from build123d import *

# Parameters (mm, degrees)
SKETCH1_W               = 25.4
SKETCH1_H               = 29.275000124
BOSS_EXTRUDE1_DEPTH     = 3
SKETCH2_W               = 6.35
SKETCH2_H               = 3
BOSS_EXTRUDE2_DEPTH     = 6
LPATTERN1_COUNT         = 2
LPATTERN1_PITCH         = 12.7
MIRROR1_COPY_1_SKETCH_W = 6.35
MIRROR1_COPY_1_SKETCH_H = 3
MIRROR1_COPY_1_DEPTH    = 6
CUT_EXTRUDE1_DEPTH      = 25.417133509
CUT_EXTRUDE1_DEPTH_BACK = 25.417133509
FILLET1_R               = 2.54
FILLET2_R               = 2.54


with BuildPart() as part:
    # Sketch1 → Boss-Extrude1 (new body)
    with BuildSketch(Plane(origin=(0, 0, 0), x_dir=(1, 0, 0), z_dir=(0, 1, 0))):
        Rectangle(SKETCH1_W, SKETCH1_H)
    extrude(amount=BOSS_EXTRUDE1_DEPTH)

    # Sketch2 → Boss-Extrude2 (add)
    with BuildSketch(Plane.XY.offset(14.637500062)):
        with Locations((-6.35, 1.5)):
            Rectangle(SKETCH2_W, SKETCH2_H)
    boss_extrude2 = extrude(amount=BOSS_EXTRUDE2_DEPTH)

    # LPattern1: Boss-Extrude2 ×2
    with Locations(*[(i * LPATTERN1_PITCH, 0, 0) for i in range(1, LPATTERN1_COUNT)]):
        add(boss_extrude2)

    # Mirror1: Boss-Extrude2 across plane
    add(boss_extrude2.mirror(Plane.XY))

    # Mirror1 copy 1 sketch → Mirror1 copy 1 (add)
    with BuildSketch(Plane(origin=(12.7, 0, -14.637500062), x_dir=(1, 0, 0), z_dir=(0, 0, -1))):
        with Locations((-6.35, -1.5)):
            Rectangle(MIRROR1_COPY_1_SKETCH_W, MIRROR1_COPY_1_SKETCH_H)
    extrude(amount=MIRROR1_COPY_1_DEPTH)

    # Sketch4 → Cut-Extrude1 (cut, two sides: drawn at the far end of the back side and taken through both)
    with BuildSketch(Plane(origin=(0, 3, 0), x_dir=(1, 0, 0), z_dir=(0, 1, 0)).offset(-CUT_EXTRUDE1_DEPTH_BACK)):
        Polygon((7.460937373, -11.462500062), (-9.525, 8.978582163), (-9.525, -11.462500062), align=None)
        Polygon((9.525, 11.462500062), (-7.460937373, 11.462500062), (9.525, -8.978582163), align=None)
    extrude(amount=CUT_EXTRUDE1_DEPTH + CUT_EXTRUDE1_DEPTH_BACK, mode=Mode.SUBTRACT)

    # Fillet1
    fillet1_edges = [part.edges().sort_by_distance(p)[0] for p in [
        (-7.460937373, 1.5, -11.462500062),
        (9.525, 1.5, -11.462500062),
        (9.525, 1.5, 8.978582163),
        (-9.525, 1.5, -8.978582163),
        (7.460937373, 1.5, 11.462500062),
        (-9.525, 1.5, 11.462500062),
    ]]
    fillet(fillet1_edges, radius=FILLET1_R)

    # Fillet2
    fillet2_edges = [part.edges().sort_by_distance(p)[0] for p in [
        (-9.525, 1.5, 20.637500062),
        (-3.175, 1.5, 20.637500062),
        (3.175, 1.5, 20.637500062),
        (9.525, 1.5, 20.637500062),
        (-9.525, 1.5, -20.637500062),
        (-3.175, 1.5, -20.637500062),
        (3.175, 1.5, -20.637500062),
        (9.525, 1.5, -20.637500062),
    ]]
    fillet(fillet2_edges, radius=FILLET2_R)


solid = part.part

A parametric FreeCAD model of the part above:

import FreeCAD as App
import Part
import Sketcher

V = App.Vector
Q = App.Units.Quantity


def edges_at(feature, points):
    """Names of the edges that pass closest to the given points."""
    edges = feature.Shape.Edges
    near = lambda p: min(range(len(edges)), key=lambda i: edges[i].distToShape(Part.Vertex(*p))[0])
    return sorted({f"Edge{near(p) + 1}" for p in points})

doc = App.newDocument("Part")
body = doc.addObject("PartDesign::Body", "Body")

# Sketch on XZ plane
sketch1 = body.newObject("Sketcher::SketchObject", "Sketch")
sketch1.AttachmentSupport = (doc.getObject("XZ_Plane"), [""])
sketch1.MapMode = "FlatFace"
sketch1.addGeometry(Part.LineSegment(V(-13, -15, 0), V(-13, 15, 0)), False)
sketch1.addGeometry(Part.LineSegment(V(-13, 15, 0), V(13, 15, 0)), False)
sketch1.addGeometry(Part.LineSegment(V(13, 15, 0), V(13, -15, 0)), False)
sketch1.addGeometry(Part.LineSegment(V(13, -15, 0), V(-13, -15, 0)), False)
sketch1.addConstraint(Sketcher.Constraint("Coincident", 0, 2, 1, 1))
sketch1.addConstraint(Sketcher.Constraint("Coincident", 1, 2, 2, 1))
sketch1.addConstraint(Sketcher.Constraint("Coincident", 2, 2, 3, 1))
sketch1.addConstraint(Sketcher.Constraint("Coincident", 3, 2, 0, 1))
sketch1.addConstraint(Sketcher.Constraint("Vertical", 0))
sketch1.addConstraint(Sketcher.Constraint("Horizontal", 1))
sketch1.addConstraint(Sketcher.Constraint("Vertical", 2))
sketch1.addConstraint(Sketcher.Constraint("Horizontal", 3))
sketch1.addConstraint(Sketcher.Constraint("Symmetric", 0, 2, 2, 2, -1, 1))
sketch1.addConstraint(Sketcher.Constraint("DistanceX", 1, 1, 1, 2, Q("1 in")))
sketch1.addConstraint(Sketcher.Constraint("DistanceY", 0, 1, 0, 2, Q("29.275 mm")))
pad1 = body.newObject("PartDesign::Pad", "Pad")
pad1.Profile = sketch1
pad1.Length = 3
pad1.Reversed = True

# Sketch on XY plane
sketch2 = body.newObject("Sketcher::SketchObject", "Sketch001")
sketch2.AttachmentSupport = (doc.getObject("XY_Plane"), [""])
sketch2.MapMode = "FlatFace"
sketch2.AttachmentOffset = App.Placement(V(0, 0, 14.6375), App.Rotation())
sketch2.addGeometry(Part.LineSegment(V(-9.5, 3, 0), V(-9.5, 0, 0)), False)
sketch2.addGeometry(Part.LineSegment(V(-9.5, 0, 0), V(-3.2, 0, 0)), False)
sketch2.addGeometry(Part.LineSegment(V(-3.2, 0, 0), V(-3.2, 3, 0)), False)
sketch2.addGeometry(Part.LineSegment(V(-3.2, 3, 0), V(-9.5, 3, 0)), False)
sketch2.addConstraint(Sketcher.Constraint("Coincident", 0, 2, 1, 1))
sketch2.addConstraint(Sketcher.Constraint("Coincident", 1, 2, 2, 1))
sketch2.addConstraint(Sketcher.Constraint("Coincident", 2, 2, 3, 1))
sketch2.addConstraint(Sketcher.Constraint("Coincident", 3, 2, 0, 1))
sketch2.addConstraint(Sketcher.Constraint("Vertical", 0))
sketch2.addConstraint(Sketcher.Constraint("Horizontal", 1))
sketch2.addConstraint(Sketcher.Constraint("Vertical", 2))
sketch2.addConstraint(Sketcher.Constraint("Horizontal", 3))
sketch2.addConstraint(Sketcher.Constraint("PointOnObject", 0, 2, -1))
sketch2.addConstraint(Sketcher.Constraint("DistanceX", 1, 1, 1, 2, Q("0.25 in")))
sketch2.addConstraint(Sketcher.Constraint("DistanceX", 0, 2, -1, 1, Q("0.375 in")))
sketch2.addConstraint(Sketcher.Constraint("DistanceY", 0, 2, 0, 1, Q("3 mm")))
pad2 = body.newObject("PartDesign::Pad", "Pad001")
pad2.Profile = sketch2
pad2.Length = 6
doc.recompute()

linearpattern = body.newObject("PartDesign::LinearPattern", "LinearPattern")
linearpattern.Originals = [pad2]
linearpattern.Direction = (doc.getObject("X_Axis"), [""])
linearpattern.Mode = "offset"
linearpattern.Offset = Q("0.5 in")
linearpattern.Occurrences = 2
body.Tip = linearpattern
doc.recompute()

mirrored = body.newObject("PartDesign::Mirrored", "Mirrored")
mirrored.Originals = [pad2]
mirrored.MirrorPlane = (doc.getObject("XY_Plane"), [""])
body.Tip = mirrored

# Sketch on XY plane
sketch3 = body.newObject("Sketcher::SketchObject", "Sketch002")
sketch3.AttachmentSupport = (doc.getObject("XY_Plane"), [""])
sketch3.MapMode = "FlatFace"
sketch3.AttachmentOffset = App.Placement(V(0, 0, -14.6375), App.Rotation())
sketch3.addGeometry(Part.LineSegment(V(3.2, 0, 0), V(3.2, 3, 0)), False)
sketch3.addGeometry(Part.LineSegment(V(3.2, 3, 0), V(9.5, 3, 0)), False)
sketch3.addGeometry(Part.LineSegment(V(9.5, 3, 0), V(9.5, 0, 0)), False)
sketch3.addGeometry(Part.LineSegment(V(9.5, 0, 0), V(3.2, 0, 0)), False)
sketch3.addConstraint(Sketcher.Constraint("Coincident", 0, 2, 1, 1))
sketch3.addConstraint(Sketcher.Constraint("Coincident", 1, 2, 2, 1))
sketch3.addConstraint(Sketcher.Constraint("Coincident", 2, 2, 3, 1))
sketch3.addConstraint(Sketcher.Constraint("Coincident", 3, 2, 0, 1))
sketch3.addConstraint(Sketcher.Constraint("Vertical", 0))
sketch3.addConstraint(Sketcher.Constraint("Horizontal", 1))
sketch3.addConstraint(Sketcher.Constraint("Vertical", 2))
sketch3.addConstraint(Sketcher.Constraint("Horizontal", 3))
sketch3.addConstraint(Sketcher.Constraint("PointOnObject", 2, 2, -1))
sketch3.addConstraint(Sketcher.Constraint("DistanceX", 1, 1, 1, 2, Q("0.25 in")))
sketch3.addConstraint(Sketcher.Constraint("DistanceX", -1, 1, 0, 2, Q("0.125 in")))
sketch3.addConstraint(Sketcher.Constraint("DistanceY", 0, 1, 0, 2, Q("3 mm")))
pad3 = body.newObject("PartDesign::Pad", "Pad002")
pad3.Profile = sketch3
pad3.Length = 6
pad3.Reversed = True

# Sketch on XZ plane
sketch4 = body.newObject("Sketcher::SketchObject", "Sketch003")
sketch4.AttachmentSupport = (doc.getObject("XZ_Plane"), [""])
sketch4.MapMode = "FlatFace"
sketch4.AttachmentOffset = App.Placement(V(0, 0, -3), App.Rotation())
sketch4.addGeometry(Part.LineSegment(V(7, 11, 0), V(-10, -9, 0)), False)
sketch4.addGeometry(Part.LineSegment(V(-10, -9, 0), V(-10, 11, 0)), False)
sketch4.addGeometry(Part.LineSegment(V(-10, 11, 0), V(7, 11, 0)), False)
sketch4.addGeometry(Part.LineSegment(V(10, -11, 0), V(-7, -11, 0)), False)
sketch4.addGeometry(Part.LineSegment(V(-7, -11, 0), V(10, 9, 0)), False)
sketch4.addGeometry(Part.LineSegment(V(10, 9, 0), V(10, -11, 0)), False)
sketch4.addConstraint(Sketcher.Constraint("Coincident", 0, 2, 1, 1))
sketch4.addConstraint(Sketcher.Constraint("Coincident", 1, 2, 2, 1))
sketch4.addConstraint(Sketcher.Constraint("Coincident", 2, 2, 0, 1))
sketch4.addConstraint(Sketcher.Constraint("Coincident", 3, 2, 4, 1))
sketch4.addConstraint(Sketcher.Constraint("Coincident", 4, 2, 5, 1))
sketch4.addConstraint(Sketcher.Constraint("Coincident", 5, 2, 3, 1))
sketch4.addConstraint(Sketcher.Constraint("Vertical", 1))
sketch4.addConstraint(Sketcher.Constraint("Horizontal", 2))
sketch4.addConstraint(Sketcher.Constraint("Horizontal", 3))
sketch4.addConstraint(Sketcher.Constraint("Vertical", 5))
sketch4.addConstraint(Sketcher.Constraint("Symmetric", 2, 2, 3, 2, -1, 1))
sketch4.addConstraint(Sketcher.Constraint("Symmetric", 0, 2, 4, 2, -1, 1))
sketch4.addConstraint(Sketcher.Constraint("DistanceX", 1, 2, 4, 2, Q("0.75 in")))
sketch4.addConstraint(Sketcher.Constraint("DistanceY", -1, 1, 1, 2, Q("11.4625 mm")))
sketch4.addConstraint(Sketcher.Constraint("DistanceX", 2, 1, 2, 2, Q("16.985937 mm")))
sketch4.addConstraint(Sketcher.Constraint("DistanceY", 1, 1, 1, 2, Q("20.441082 mm")))
pocket1 = body.newObject("PartDesign::Pocket", "Pocket")
pocket1.Profile = sketch4
pocket1.Type = "ThroughAll"
pocket1.Midplane = True
doc.recompute()

fillet = body.newObject("PartDesign::Fillet", "Fillet")
fillet.Base = (pocket1, edges_at(pocket1, [
    (-7.461, 1.5, -11.463),
    (9.525, 1.5, -11.463),
    (9.525, 1.5, 8.979),
    (-9.525, 1.5, -8.979),
    (7.461, 1.5, 11.463),
    (-9.525, 1.5, 11.463),
]))
fillet.Radius = Q("0.1 in")
doc.recompute()

fillet2 = body.newObject("PartDesign::Fillet", "Fillet001")
fillet2.Base = (fillet, edges_at(fillet, [
    (-9.525, 1.5, 20.638),
    (-3.175, 1.5, 20.638),
    (3.175, 1.5, 20.638),
    (9.525, 1.5, 20.638),
    (-9.525, 1.5, -20.638),
    (-3.175, 1.5, -20.638),
    (3.175, 1.5, -20.638),
    (9.525, 1.5, -20.638),
]))
fillet2.Radius = Q("0.1 in")

doc.recompute()
